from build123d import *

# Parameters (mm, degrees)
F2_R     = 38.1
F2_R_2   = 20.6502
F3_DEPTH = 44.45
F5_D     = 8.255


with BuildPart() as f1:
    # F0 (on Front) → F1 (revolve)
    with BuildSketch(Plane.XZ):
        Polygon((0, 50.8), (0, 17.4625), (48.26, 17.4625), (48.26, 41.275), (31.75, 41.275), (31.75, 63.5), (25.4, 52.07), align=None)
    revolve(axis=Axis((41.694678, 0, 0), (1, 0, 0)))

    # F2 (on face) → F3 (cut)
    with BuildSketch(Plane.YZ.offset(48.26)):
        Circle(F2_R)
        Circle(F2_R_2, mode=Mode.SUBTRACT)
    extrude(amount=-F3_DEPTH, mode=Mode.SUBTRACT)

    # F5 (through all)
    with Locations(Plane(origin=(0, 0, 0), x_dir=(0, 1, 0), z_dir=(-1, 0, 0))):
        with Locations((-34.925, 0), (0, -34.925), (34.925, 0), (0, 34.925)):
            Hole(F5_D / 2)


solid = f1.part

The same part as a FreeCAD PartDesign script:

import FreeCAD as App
import Part
import Sketcher

V = App.Vector
Q = App.Units.Quantity

doc = App.newDocument("Part")
body = doc.addObject("PartDesign::Body", "Body")

sketch1 = body.newObject("Sketcher::SketchObject", "Sketch")
sketch1.AttachmentSupport = (doc.getObject("XZ_Plane"), [""])
sketch1.MapMode = "FlatFace"
sketch1.addGeometry([
    Part.LineSegment(V(0, 51, 0), V(0, 17, 0)),
    Part.LineSegment(V(0, 17, 0), V(48, 17, 0)),
    Part.LineSegment(V(48, 17, 0), V(48, 41, 0)),
    Part.LineSegment(V(48, 41, 0), V(32, 41, 0)),
    Part.LineSegment(V(32, 41, 0), V(32, 64, 0)),
    Part.LineSegment(V(32, 64, 0), V(25, 52, 0)),
    Part.LineSegment(V(25, 52, 0), V(0, 51, 0)),
], False)
sketch1.addConstraint([
    Sketcher.Constraint("Coincident", 0, 2, 1, 1),
    Sketcher.Constraint("Coincident", 1, 2, 2, 1),
    Sketcher.Constraint("Coincident", 2, 2, 3, 1),
    Sketcher.Constraint("Coincident", 3, 2, 4, 1),
    Sketcher.Constraint("Coincident", 4, 2, 5, 1),
    Sketcher.Constraint("Coincident", 5, 2, 6, 1),
    Sketcher.Constraint("Coincident", 6, 2, 0, 1),
    Sketcher.Constraint("Vertical", 0),
    Sketcher.Constraint("Horizontal", 1),
    Sketcher.Constraint("Vertical", 2),
    Sketcher.Constraint("Horizontal", 3),
    Sketcher.Constraint("Vertical", 4),
    Sketcher.Constraint("PointOnObject", 0, 2, -2),
    Sketcher.Constraint("DistanceX", 1, 1, 1, 2, Q("1.9 in")),
    Sketcher.Constraint("DistanceX", -1, 1, 5, 2, Q("1 in")),
    Sketcher.Constraint("DistanceY", -1, 1, 6, 2, Q("2 in")),
    Sketcher.Constraint("DistanceX", 3, 2, 3, 1, Q("0.65 in")),
    Sketcher.Constraint("DistanceY", -1, 1, 4, 2, Q("2.5 in")),
    Sketcher.Constraint("DistanceY", 0, 2, 0, 1, Q("1.3125 in")),
    Sketcher.Constraint("DistanceY", 2, 1, 2, 2, Q("0.9375 in")),
    Sketcher.Constraint("DistanceY", -1, 1, 5, 2, Q("2.05 in")),
])
revolution = body.newObject("PartDesign::Revolution", "Revolution")
revolution.Profile = sketch1
revolution.ReferenceAxis = (sketch1, ["H_Axis"])
revolution.Angle = 360

sketch2 = body.newObject("Sketcher::SketchObject", "Sketch001")
sketch2.AttachmentSupport = (doc.getObject("YZ_Plane"), [""])
sketch2.MapMode = "FlatFace"
sketch2.AttachmentOffset = App.Placement(V(0, 0, 1.9 * 25.4), App.Rotation())
sketch2.addGeometry([
    Part.Circle(V(0, 0, 0), V(0, 0, 1), 38),
    Part.Circle(V(0, 0, 0), V(0, 0, 1), 21),
], False)
sketch2.addConstraint([
    Sketcher.Constraint("Coincident", 0, 3, -1, 1),
    Sketcher.Constraint("Coincident", 1, 3, -1, 1),
    Sketcher.Constraint("Diameter", 0, Q("3 in")),
    Sketcher.Constraint("Diameter", 1, Q("1.626 in")),
])
pocket1 = body.newObject("PartDesign::Pocket", "Pocket")
pocket1.Profile = sketch2
pocket1.Length = Q("1.75 in")

sketch3 = body.newObject("Sketcher::SketchObject", "Sketch002")
sketch3.AttachmentSupport = (doc.getObject("YZ_Plane"), [""])
sketch3.MapMode = "FlatFace"
sketch3.addGeometry([
    Part.Circle(V(-34.9, 0, 0), V(0, 0, 1), 4.1),
    Part.Circle(V(0, 34.9, 0), V(0, 0, 1), 4.1),
    Part.Circle(V(34.9, 0, 0), V(0, 0, 1), 4.1),
    Part.Circle(V(0, -34.9, 0), V(0, 0, 1), 4.1),
], False)
sketch3.addConstraint([
    Sketcher.Constraint("Equal", 0, 1),
    Sketcher.Constraint("Equal", 1, 2),
    Sketcher.Constraint("Equal", 2, 3),
    Sketcher.Constraint("Symmetric", 0, 3, 2, 3, -1, 1),
    Sketcher.Constraint("Symmetric", 1, 3, 3, 3, -1, 1),
    Sketcher.Constraint("PointOnObject", 0, 3, -1),
    Sketcher.Constraint("PointOnObject", 1, 3, -2),
    Sketcher.Constraint("Diameter", 0, Q("0.325 in")),
    Sketcher.Constraint("DistanceX", 0, 3, 2, 3, Q("2.75 in")),
    Sketcher.Constraint("DistanceY", 3, 3, 1, 3, Q("2.75 in")),
])
doc.recompute()
hole = body.newObject("PartDesign::Hole", "Hole")
hole.Profile = sketch3
hole.ThreadType = "None"
hole.Diameter = Q("0.325 in")
hole.DepthType = "ThroughAll"
hole.Reversed = True

doc.recompute()
